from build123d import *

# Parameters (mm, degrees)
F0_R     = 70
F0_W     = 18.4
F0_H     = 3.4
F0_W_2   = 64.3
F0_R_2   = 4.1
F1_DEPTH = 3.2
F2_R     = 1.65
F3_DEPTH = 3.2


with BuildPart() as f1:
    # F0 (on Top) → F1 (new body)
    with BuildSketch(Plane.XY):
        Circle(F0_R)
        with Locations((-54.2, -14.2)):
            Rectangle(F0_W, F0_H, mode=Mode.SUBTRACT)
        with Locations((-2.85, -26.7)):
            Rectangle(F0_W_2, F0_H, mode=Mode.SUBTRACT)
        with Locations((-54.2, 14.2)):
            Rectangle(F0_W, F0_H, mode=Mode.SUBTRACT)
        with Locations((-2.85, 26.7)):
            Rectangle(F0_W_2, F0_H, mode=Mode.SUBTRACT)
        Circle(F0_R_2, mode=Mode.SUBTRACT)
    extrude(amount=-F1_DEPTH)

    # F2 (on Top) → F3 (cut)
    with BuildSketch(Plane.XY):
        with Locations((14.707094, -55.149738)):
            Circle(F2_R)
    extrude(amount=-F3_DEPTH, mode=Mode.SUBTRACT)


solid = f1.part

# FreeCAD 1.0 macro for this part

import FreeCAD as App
import Part
import Sketcher

V = App.Vector


def add_polygon(sketch, points):
    """Adds a closed chain of lines whose ends are joined by coincident constraints."""
    first, n = sketch.GeometryCount, len(points)
    for a, b in zip(points, points[1:] + points[:1]):
        sketch.addGeometry(Part.LineSegment(App.Vector(*a, 0), App.Vector(*b, 0)), False)
    for i in range(n):
        sketch.addConstraint(Sketcher.Constraint("Coincident", first + i, 2, first + (i + 1) % n, 1))

doc = App.newDocument("Part")
body = doc.addObject("PartDesign::Body", "Body")

sketch1 = body.newObject("Sketcher::SketchObject", "Sketch")
sketch1.AttachmentSupport = (doc.getObject("XY_Plane"), [""])
sketch1.MapMode = "FlatFace"
sketch1.addGeometry(Part.Circle(V(0, 0, 0), V(0, 0, 1), 70), False)
add_polygon(sketch1, [(-45, -15.9), (-63.4, -15.9), (-63.4, -12.5), (-45, -12.5)])
add_polygon(sketch1, [(29.3, -28.4), (-35, -28.4), (-35, -25), (29.3, -25)])
add_polygon(sketch1, [(-45, 12.5), (-63.4, 12.5), (-63.4, 15.9), (-45, 15.9)])
sketch1.addGeometry(Part.Circle(V(0, 0, 0), V(0, 0, 1), 4.1), False)
add_polygon(sketch1, [(29.3, 25), (-35, 25), (-35, 28.4), (29.3, 28.4)])
sketch1.addConstraint([
    Sketcher.Constraint("Horizontal", 1),
    Sketcher.Constraint("Vertical", 2),
    Sketcher.Constraint("Horizontal", 3),
    Sketcher.Constraint("Vertical", 4),
    Sketcher.Constraint("Horizontal", 5),
    Sketcher.Constraint("Vertical", 6),
    Sketcher.Constraint("Horizontal", 7),
    Sketcher.Constraint("Vertical", 8),
    Sketcher.Constraint("Horizontal", 9),
    Sketcher.Constraint("Vertical", 10),
    Sketcher.Constraint("Horizontal", 11),
    Sketcher.Constraint("Vertical", 12),
    Sketcher.Constraint("Horizontal", 14),
    Sketcher.Constraint("Vertical", 15),
    Sketcher.Constraint("Horizontal", 16),
    Sketcher.Constraint("Vertical", 17),
    Sketcher.Constraint("Coincident", 0, 3, -1, 1),
    Sketcher.Constraint("Coincident", 13, 3, -1, 1),
    Sketcher.Constraint("Symmetric", 2, 2, 9, 2, -1),
    Sketcher.Constraint("Symmetric", 4, 2, 11, 2, -1),
    Sketcher.Constraint("Symmetric", 6, 2, 14, 2, -1),
    Sketcher.Constraint("Symmetric", 8, 2, 16, 2, -1),
    Sketcher.Constraint("Equal", 4, 6),
    Sketcher.Constraint("Diameter", 0, 140.0),
    Sketcher.Constraint("Diameter", 13, 8.2),
    Sketcher.Constraint("DistanceX", 1, 2, 1, 1, 18.4),
    Sketcher.Constraint("DistanceX", 5, 2, 5, 1, 64.3),
    Sketcher.Constraint("DistanceY", 2, 1, 2, 2, 3.4),
    Sketcher.Constraint("DistanceX", 3, 2, -1, 1, 45.0),
    Sketcher.Constraint("DistanceX", 5, 2, -1, 1, 35.0),
    Sketcher.Constraint("DistanceY", 6, 2, -1, 1, 25.0),
    Sketcher.Constraint("DistanceY", 2, 2, 9, 2, 25.0),
])
pad1 = body.newObject("PartDesign::Pad", "Pad")
pad1.Profile = sketch1
pad1.Length = 3.2
pad1.Reversed = True

sketch2 = body.newObject("Sketcher::SketchObject", "Sketch001")
sketch2.AttachmentSupport = (doc.getObject("XY_Plane"), [""])
sketch2.MapMode = "FlatFace"
sketch2.addGeometry(Part.Circle(V(14.7, -55.1, 0), V(0, 0, 1), 1.6), False)
sketch2.addConstraint([
    Sketcher.Constraint("Diameter", 0, 3.3),
    Sketcher.Constraint("DistanceX", -1, 1, 0, 3, 14.707094),
    Sketcher.Constraint("DistanceY", 0, 3, -1, 1, 55.149738),
])
pocket1 = body.newObject("PartDesign::Pocket", "Pocket")
pocket1.Profile = sketch2
pocket1.Length = 3.2

doc.recompute()
